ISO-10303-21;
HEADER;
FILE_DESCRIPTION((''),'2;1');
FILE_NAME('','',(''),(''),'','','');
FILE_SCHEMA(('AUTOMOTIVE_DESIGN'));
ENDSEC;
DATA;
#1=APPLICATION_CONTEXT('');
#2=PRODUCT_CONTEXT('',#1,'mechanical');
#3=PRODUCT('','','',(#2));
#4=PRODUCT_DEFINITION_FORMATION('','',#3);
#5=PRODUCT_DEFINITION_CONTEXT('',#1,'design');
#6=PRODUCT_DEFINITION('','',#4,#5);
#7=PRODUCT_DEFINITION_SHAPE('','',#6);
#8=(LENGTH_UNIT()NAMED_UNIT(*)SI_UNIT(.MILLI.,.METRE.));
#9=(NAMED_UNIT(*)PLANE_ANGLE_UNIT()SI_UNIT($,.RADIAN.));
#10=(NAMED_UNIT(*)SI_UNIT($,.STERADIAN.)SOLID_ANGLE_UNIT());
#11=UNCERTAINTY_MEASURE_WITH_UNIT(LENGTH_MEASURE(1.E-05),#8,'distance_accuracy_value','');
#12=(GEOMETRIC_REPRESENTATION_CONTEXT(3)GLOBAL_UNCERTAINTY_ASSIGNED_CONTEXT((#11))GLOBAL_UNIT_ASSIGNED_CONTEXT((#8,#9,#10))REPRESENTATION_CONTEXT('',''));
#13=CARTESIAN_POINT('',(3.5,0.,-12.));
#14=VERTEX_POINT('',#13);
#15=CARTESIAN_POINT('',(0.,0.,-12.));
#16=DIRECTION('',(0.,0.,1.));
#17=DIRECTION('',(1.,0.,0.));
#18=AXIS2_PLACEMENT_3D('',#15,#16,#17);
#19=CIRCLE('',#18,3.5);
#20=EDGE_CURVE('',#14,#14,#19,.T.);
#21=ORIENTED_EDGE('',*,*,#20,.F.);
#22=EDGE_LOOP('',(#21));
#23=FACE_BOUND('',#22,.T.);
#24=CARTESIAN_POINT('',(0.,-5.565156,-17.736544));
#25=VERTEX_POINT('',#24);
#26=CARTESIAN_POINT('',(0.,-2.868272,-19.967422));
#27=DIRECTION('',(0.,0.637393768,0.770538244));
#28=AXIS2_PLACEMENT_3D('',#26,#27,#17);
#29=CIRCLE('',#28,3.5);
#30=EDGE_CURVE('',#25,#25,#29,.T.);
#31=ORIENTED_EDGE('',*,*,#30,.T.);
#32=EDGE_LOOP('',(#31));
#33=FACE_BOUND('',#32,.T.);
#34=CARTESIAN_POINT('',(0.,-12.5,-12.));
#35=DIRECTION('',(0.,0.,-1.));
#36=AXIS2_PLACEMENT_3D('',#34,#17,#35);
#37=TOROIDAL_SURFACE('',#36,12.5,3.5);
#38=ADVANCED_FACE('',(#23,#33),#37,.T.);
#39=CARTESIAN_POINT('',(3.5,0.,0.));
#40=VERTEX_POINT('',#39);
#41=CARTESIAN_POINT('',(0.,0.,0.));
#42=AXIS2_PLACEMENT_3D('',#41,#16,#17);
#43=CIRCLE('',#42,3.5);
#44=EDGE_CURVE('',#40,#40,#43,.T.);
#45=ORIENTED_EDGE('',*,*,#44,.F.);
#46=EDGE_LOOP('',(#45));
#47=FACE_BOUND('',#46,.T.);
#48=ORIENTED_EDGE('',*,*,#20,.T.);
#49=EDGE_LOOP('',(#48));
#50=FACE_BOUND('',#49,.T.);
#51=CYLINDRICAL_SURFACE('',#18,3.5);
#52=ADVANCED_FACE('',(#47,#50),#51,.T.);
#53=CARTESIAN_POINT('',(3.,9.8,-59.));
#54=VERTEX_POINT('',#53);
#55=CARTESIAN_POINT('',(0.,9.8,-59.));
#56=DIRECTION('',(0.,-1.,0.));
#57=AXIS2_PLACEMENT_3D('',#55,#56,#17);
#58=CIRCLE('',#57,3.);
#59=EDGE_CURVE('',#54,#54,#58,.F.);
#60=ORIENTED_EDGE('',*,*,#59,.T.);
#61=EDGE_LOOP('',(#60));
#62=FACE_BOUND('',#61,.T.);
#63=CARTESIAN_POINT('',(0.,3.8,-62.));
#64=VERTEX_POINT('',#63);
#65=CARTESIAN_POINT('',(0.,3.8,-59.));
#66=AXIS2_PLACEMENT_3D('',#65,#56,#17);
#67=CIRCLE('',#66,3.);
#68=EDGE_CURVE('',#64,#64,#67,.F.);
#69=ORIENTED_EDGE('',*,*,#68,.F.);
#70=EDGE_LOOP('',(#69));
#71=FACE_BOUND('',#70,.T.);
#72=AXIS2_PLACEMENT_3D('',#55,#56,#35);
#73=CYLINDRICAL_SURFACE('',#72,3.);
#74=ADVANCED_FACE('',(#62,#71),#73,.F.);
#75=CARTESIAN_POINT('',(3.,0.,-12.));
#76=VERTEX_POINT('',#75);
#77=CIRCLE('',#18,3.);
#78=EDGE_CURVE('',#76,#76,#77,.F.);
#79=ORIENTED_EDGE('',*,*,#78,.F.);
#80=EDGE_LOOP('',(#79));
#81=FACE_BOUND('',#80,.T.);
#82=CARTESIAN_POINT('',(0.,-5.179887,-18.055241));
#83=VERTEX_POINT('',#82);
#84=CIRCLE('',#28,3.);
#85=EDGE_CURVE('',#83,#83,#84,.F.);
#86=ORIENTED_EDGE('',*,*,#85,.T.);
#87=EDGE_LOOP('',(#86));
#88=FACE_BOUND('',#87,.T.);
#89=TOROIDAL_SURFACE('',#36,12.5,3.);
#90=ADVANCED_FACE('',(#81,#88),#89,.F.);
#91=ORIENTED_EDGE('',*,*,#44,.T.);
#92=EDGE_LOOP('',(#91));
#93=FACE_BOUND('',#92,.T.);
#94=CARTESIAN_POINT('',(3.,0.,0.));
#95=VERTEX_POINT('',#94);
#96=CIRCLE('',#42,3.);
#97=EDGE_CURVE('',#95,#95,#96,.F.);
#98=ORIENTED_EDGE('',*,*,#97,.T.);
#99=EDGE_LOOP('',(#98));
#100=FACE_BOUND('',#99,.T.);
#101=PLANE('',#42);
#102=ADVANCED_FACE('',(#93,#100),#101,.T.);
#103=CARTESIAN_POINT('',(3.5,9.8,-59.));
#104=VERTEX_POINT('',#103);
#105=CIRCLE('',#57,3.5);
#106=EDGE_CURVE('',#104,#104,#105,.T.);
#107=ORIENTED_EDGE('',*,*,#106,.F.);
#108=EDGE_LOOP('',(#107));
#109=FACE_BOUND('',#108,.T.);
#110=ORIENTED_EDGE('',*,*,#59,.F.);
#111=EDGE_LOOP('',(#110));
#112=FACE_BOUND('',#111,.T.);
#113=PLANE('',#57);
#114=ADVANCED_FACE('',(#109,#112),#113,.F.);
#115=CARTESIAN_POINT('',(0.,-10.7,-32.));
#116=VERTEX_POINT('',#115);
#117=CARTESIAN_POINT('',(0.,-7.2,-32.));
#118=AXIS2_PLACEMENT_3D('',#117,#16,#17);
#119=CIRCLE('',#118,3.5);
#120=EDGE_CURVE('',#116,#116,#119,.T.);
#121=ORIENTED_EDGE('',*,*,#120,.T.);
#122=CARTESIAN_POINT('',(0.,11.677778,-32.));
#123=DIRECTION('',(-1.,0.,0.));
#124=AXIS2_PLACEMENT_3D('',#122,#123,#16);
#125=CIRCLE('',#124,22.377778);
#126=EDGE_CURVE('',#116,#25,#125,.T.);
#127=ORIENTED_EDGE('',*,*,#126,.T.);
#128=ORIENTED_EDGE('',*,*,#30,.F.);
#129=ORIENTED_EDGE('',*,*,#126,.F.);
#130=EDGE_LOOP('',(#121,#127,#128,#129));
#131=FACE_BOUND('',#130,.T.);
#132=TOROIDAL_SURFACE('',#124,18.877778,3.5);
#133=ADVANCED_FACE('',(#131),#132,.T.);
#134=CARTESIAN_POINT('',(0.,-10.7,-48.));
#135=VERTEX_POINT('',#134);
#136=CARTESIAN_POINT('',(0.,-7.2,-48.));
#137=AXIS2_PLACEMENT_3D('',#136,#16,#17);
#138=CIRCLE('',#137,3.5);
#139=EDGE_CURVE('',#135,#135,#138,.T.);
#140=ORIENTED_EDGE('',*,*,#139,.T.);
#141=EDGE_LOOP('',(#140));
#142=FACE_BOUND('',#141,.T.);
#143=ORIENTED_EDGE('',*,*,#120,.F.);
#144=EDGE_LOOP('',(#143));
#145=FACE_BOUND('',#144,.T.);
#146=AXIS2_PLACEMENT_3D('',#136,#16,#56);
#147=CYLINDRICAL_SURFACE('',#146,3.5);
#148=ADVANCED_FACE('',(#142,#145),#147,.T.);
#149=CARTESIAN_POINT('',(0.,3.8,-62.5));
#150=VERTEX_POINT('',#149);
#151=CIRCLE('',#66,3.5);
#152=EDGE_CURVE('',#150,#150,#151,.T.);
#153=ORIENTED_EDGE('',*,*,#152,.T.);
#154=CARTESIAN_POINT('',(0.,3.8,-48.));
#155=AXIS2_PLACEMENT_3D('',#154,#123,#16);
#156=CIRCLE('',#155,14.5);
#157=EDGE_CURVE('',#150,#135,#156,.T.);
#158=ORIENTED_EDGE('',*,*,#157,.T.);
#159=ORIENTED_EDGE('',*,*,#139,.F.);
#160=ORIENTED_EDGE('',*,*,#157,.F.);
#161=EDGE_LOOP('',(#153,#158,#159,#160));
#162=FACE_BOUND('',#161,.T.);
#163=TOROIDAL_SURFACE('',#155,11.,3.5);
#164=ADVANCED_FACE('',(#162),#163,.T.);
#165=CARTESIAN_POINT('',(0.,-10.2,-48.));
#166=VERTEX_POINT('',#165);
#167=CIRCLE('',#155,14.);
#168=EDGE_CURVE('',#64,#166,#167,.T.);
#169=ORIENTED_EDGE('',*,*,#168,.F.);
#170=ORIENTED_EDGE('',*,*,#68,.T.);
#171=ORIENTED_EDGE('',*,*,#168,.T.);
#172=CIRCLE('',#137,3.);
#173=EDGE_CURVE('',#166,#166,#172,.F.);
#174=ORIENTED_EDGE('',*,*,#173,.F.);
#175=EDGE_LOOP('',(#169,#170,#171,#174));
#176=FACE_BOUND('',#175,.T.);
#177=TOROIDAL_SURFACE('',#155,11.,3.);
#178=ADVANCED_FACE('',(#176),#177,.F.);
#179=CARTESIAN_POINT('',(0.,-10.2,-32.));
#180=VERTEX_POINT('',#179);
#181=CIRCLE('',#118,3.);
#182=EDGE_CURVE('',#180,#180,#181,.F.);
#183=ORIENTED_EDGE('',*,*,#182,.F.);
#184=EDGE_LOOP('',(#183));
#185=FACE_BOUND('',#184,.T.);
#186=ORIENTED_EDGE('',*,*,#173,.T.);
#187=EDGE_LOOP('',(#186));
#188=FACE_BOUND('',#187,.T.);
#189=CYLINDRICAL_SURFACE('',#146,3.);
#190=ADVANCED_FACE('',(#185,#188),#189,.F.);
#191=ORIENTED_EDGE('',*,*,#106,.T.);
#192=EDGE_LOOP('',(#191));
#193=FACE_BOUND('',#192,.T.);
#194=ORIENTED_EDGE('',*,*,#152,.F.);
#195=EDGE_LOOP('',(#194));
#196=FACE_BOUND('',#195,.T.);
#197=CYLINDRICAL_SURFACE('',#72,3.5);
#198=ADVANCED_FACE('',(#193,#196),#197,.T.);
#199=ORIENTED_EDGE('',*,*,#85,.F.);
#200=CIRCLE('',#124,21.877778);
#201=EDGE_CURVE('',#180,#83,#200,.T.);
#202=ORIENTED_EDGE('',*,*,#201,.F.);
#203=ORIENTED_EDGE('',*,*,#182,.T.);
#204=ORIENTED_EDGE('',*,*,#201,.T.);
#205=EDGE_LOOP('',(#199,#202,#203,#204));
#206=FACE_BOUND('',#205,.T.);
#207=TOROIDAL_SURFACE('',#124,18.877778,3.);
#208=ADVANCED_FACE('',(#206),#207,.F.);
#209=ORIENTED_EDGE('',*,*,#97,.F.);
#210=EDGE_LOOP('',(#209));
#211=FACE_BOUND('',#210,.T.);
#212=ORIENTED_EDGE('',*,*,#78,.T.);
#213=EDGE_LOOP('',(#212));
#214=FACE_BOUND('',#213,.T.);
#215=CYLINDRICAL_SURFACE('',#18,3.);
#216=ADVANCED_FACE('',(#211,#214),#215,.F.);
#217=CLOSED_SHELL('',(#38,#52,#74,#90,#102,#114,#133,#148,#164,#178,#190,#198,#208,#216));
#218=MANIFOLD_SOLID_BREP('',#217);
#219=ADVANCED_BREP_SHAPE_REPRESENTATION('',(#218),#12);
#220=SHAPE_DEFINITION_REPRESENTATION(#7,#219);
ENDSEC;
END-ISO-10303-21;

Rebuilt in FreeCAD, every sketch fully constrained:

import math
import FreeCAD as App
import Part
import Sketcher
from FreeCAD import Vector
Q = App.Units.Quantity

doc = App.newDocument("Part")
body = doc.addObject("PartDesign::Body", "Body")

# Sketch on XY plane
sketch1 = doc.addObject("Sketcher::SketchObject", "Sketch")
body.addObject(sketch1)
sketch1.AttachmentSupport = (doc.XY_Plane, [""])
sketch1.MapMode = "FlatFace"
sketch1.addGeometry([
    Part.Circle(Vector(0, 0, 0), Vector(0, 0, 1), 3.5),
    Part.Circle(Vector(0, 0, 0), Vector(0, 0, 1), 3),
], False)
sketch1.addConstraint([
    Sketcher.Constraint("Coincident", 0, 3, -1, 1),
    Sketcher.Constraint("Coincident", 1, 3, -1, 1),
    Sketcher.Constraint("Diameter", 0, Q("7 mm")),
    Sketcher.Constraint("Diameter", 1, Q("6 mm")),
])

# Sketch on YZ plane
sketch2 = doc.addObject("Sketcher::SketchObject", "Sketch001")
body.addObject(sketch2)
sketch2.AttachmentSupport = (doc.YZ_Plane, [""])
sketch2.MapMode = "FlatFace"
sketch2.addGeometry([
    Part.LineSegment(Vector(0, 0, 0), Vector(0, -12, 0)),  # 0
    Part.ArcOfCircle(Part.Circle(Vector(-13, -12, 0), Vector(0, 0, 1), 13), math.radians(-40), math.radians(0)),  # 1
    Part.ArcOfCircle(Part.Circle(Vector(12, -32, 0), Vector(0, 0, 1), 19), math.radians(140), math.radians(180)),  # 2
    Part.LineSegment(Vector(-7, -32, 0), Vector(-7, -48, 0)),  # 3
    Part.ArcOfCircle(Part.Circle(Vector(4, -48, 0), Vector(0, 0, 1), 11), math.radians(180), math.radians(270)),  # 4
    Part.LineSegment(Vector(4, -59, 0), Vector(10, -59, 0)),  # 5
], False)
sketch2.addConstraint([
    Sketcher.Constraint("Tangent", 0, 2, 1, 2),
    Sketcher.Constraint("Tangent", 1, 1, 2, 1),
    Sketcher.Constraint("Tangent", 2, 2, 3, 1),
    Sketcher.Constraint("Tangent", 3, 2, 4, 1),
    Sketcher.Constraint("Tangent", 4, 2, 5, 1),
    Sketcher.Constraint("Vertical", 0),
    Sketcher.Constraint("Vertical", 3),
    Sketcher.Constraint("Horizontal", 5),
    Sketcher.Constraint("Coincident", 0, 1, -1, 1),
    Sketcher.Constraint("Radius", 4, Q("11 mm")),
    Sketcher.Constraint("Radius", 1, Q("12.5 mm")),
    Sketcher.Constraint("DistanceX", 5, 1, 5, 2, Q("6 mm")),
    Sketcher.Constraint("DistanceY", 0, 2, 0, 1, Q("12 mm")),
    Sketcher.Constraint("DistanceY", 3, 2, 3, 1, Q("16 mm")),
    Sketcher.Constraint("DistanceY", 2, 3, -1, 1, Q("32 mm")),
    Sketcher.Constraint("DistanceX", -1, 1, 4, 3, Q("3.8 mm")),
])
doc.recompute()

additivepipe = doc.addObject("PartDesign::AdditivePipe", "AdditivePipe")
body.addObject(additivepipe)
additivepipe.Profile = sketch1
additivepipe.Spine = (sketch2, ["Edge1", "Edge2", "Edge3", "Edge4", "Edge5", "Edge6"])

doc.recompute()
